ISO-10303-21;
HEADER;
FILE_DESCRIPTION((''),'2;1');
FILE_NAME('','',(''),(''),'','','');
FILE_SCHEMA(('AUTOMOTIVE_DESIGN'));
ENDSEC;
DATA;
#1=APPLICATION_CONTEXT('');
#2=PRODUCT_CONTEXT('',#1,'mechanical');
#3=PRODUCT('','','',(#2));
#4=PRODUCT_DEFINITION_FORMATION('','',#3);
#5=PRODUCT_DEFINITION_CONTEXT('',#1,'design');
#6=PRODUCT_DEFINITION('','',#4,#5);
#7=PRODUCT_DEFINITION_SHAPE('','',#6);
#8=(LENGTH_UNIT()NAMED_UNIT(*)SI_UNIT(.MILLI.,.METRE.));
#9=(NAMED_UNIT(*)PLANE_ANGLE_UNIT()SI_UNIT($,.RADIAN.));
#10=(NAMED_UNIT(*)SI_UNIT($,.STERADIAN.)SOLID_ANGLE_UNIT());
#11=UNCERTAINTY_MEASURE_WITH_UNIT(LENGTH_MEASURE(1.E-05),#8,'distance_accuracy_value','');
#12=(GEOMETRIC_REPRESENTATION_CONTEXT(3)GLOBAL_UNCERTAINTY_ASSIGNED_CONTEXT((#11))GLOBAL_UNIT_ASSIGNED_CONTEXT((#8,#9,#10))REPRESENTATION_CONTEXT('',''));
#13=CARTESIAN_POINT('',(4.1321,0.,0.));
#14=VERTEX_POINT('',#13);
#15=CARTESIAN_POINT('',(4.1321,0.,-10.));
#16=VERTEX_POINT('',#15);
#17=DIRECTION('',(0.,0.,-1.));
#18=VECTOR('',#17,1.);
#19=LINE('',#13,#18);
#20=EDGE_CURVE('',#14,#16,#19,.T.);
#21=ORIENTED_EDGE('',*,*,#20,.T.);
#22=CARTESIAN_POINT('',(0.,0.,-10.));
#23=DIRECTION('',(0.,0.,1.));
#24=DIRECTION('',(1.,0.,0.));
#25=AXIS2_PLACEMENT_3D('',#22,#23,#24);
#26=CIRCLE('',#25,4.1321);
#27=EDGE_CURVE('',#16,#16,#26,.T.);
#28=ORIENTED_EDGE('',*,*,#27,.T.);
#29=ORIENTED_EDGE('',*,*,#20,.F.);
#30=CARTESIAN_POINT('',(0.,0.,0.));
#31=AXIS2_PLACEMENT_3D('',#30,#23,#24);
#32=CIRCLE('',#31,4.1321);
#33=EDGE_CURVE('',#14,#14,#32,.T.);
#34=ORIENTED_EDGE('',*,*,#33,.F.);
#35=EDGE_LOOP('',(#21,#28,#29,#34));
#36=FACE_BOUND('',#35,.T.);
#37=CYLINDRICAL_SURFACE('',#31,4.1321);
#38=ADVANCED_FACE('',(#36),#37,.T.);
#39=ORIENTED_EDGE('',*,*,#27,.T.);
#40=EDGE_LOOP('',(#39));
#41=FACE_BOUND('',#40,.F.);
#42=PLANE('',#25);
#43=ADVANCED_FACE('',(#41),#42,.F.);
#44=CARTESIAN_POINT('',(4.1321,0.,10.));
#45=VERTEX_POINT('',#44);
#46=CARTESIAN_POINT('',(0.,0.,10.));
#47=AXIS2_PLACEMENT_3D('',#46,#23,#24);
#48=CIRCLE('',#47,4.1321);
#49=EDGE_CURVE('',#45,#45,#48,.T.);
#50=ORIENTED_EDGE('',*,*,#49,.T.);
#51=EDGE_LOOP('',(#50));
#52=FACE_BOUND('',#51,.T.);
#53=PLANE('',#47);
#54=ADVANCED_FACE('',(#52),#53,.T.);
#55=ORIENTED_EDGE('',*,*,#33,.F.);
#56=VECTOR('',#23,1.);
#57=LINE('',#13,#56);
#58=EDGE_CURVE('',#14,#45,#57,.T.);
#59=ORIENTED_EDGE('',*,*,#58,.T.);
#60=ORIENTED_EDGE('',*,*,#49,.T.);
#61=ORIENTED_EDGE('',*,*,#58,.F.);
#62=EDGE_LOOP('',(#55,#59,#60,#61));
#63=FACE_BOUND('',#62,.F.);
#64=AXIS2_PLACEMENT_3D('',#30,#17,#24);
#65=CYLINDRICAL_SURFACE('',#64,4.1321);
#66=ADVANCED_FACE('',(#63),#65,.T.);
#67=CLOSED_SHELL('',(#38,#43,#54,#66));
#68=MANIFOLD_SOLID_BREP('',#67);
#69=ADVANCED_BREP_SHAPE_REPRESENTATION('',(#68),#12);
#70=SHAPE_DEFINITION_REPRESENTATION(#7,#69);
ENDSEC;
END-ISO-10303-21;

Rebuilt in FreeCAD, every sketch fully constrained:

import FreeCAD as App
import Part
import Sketcher
from FreeCAD import Vector
Q = App.Units.Quantity

doc = App.newDocument("Part")
body = doc.addObject("PartDesign::Body", "Body")

# Sketch on XY plane
sketch1 = body.newObject("Sketcher::SketchObject", "Sketch")
sketch1.AttachmentSupport = (doc.getObject("XY_Plane"), [""])
sketch1.MapMode = "FlatFace"
sketch1.addGeometry(Part.Circle(Vector(0, 0, 0), Vector(0, 0, 1), 4.1321), False)
sketch1.addConstraint(Sketcher.Constraint("Coincident", 0, 3, -1, 1))
sketch1.addConstraint(Sketcher.Constraint("Diameter", 0, Q("8.2642 mm")))
pad1 = body.newObject("PartDesign::Pad", "Pad")
pad1.Profile = sketch1
pad1.Length = 20
pad1.Midplane = True

doc.recompute()
